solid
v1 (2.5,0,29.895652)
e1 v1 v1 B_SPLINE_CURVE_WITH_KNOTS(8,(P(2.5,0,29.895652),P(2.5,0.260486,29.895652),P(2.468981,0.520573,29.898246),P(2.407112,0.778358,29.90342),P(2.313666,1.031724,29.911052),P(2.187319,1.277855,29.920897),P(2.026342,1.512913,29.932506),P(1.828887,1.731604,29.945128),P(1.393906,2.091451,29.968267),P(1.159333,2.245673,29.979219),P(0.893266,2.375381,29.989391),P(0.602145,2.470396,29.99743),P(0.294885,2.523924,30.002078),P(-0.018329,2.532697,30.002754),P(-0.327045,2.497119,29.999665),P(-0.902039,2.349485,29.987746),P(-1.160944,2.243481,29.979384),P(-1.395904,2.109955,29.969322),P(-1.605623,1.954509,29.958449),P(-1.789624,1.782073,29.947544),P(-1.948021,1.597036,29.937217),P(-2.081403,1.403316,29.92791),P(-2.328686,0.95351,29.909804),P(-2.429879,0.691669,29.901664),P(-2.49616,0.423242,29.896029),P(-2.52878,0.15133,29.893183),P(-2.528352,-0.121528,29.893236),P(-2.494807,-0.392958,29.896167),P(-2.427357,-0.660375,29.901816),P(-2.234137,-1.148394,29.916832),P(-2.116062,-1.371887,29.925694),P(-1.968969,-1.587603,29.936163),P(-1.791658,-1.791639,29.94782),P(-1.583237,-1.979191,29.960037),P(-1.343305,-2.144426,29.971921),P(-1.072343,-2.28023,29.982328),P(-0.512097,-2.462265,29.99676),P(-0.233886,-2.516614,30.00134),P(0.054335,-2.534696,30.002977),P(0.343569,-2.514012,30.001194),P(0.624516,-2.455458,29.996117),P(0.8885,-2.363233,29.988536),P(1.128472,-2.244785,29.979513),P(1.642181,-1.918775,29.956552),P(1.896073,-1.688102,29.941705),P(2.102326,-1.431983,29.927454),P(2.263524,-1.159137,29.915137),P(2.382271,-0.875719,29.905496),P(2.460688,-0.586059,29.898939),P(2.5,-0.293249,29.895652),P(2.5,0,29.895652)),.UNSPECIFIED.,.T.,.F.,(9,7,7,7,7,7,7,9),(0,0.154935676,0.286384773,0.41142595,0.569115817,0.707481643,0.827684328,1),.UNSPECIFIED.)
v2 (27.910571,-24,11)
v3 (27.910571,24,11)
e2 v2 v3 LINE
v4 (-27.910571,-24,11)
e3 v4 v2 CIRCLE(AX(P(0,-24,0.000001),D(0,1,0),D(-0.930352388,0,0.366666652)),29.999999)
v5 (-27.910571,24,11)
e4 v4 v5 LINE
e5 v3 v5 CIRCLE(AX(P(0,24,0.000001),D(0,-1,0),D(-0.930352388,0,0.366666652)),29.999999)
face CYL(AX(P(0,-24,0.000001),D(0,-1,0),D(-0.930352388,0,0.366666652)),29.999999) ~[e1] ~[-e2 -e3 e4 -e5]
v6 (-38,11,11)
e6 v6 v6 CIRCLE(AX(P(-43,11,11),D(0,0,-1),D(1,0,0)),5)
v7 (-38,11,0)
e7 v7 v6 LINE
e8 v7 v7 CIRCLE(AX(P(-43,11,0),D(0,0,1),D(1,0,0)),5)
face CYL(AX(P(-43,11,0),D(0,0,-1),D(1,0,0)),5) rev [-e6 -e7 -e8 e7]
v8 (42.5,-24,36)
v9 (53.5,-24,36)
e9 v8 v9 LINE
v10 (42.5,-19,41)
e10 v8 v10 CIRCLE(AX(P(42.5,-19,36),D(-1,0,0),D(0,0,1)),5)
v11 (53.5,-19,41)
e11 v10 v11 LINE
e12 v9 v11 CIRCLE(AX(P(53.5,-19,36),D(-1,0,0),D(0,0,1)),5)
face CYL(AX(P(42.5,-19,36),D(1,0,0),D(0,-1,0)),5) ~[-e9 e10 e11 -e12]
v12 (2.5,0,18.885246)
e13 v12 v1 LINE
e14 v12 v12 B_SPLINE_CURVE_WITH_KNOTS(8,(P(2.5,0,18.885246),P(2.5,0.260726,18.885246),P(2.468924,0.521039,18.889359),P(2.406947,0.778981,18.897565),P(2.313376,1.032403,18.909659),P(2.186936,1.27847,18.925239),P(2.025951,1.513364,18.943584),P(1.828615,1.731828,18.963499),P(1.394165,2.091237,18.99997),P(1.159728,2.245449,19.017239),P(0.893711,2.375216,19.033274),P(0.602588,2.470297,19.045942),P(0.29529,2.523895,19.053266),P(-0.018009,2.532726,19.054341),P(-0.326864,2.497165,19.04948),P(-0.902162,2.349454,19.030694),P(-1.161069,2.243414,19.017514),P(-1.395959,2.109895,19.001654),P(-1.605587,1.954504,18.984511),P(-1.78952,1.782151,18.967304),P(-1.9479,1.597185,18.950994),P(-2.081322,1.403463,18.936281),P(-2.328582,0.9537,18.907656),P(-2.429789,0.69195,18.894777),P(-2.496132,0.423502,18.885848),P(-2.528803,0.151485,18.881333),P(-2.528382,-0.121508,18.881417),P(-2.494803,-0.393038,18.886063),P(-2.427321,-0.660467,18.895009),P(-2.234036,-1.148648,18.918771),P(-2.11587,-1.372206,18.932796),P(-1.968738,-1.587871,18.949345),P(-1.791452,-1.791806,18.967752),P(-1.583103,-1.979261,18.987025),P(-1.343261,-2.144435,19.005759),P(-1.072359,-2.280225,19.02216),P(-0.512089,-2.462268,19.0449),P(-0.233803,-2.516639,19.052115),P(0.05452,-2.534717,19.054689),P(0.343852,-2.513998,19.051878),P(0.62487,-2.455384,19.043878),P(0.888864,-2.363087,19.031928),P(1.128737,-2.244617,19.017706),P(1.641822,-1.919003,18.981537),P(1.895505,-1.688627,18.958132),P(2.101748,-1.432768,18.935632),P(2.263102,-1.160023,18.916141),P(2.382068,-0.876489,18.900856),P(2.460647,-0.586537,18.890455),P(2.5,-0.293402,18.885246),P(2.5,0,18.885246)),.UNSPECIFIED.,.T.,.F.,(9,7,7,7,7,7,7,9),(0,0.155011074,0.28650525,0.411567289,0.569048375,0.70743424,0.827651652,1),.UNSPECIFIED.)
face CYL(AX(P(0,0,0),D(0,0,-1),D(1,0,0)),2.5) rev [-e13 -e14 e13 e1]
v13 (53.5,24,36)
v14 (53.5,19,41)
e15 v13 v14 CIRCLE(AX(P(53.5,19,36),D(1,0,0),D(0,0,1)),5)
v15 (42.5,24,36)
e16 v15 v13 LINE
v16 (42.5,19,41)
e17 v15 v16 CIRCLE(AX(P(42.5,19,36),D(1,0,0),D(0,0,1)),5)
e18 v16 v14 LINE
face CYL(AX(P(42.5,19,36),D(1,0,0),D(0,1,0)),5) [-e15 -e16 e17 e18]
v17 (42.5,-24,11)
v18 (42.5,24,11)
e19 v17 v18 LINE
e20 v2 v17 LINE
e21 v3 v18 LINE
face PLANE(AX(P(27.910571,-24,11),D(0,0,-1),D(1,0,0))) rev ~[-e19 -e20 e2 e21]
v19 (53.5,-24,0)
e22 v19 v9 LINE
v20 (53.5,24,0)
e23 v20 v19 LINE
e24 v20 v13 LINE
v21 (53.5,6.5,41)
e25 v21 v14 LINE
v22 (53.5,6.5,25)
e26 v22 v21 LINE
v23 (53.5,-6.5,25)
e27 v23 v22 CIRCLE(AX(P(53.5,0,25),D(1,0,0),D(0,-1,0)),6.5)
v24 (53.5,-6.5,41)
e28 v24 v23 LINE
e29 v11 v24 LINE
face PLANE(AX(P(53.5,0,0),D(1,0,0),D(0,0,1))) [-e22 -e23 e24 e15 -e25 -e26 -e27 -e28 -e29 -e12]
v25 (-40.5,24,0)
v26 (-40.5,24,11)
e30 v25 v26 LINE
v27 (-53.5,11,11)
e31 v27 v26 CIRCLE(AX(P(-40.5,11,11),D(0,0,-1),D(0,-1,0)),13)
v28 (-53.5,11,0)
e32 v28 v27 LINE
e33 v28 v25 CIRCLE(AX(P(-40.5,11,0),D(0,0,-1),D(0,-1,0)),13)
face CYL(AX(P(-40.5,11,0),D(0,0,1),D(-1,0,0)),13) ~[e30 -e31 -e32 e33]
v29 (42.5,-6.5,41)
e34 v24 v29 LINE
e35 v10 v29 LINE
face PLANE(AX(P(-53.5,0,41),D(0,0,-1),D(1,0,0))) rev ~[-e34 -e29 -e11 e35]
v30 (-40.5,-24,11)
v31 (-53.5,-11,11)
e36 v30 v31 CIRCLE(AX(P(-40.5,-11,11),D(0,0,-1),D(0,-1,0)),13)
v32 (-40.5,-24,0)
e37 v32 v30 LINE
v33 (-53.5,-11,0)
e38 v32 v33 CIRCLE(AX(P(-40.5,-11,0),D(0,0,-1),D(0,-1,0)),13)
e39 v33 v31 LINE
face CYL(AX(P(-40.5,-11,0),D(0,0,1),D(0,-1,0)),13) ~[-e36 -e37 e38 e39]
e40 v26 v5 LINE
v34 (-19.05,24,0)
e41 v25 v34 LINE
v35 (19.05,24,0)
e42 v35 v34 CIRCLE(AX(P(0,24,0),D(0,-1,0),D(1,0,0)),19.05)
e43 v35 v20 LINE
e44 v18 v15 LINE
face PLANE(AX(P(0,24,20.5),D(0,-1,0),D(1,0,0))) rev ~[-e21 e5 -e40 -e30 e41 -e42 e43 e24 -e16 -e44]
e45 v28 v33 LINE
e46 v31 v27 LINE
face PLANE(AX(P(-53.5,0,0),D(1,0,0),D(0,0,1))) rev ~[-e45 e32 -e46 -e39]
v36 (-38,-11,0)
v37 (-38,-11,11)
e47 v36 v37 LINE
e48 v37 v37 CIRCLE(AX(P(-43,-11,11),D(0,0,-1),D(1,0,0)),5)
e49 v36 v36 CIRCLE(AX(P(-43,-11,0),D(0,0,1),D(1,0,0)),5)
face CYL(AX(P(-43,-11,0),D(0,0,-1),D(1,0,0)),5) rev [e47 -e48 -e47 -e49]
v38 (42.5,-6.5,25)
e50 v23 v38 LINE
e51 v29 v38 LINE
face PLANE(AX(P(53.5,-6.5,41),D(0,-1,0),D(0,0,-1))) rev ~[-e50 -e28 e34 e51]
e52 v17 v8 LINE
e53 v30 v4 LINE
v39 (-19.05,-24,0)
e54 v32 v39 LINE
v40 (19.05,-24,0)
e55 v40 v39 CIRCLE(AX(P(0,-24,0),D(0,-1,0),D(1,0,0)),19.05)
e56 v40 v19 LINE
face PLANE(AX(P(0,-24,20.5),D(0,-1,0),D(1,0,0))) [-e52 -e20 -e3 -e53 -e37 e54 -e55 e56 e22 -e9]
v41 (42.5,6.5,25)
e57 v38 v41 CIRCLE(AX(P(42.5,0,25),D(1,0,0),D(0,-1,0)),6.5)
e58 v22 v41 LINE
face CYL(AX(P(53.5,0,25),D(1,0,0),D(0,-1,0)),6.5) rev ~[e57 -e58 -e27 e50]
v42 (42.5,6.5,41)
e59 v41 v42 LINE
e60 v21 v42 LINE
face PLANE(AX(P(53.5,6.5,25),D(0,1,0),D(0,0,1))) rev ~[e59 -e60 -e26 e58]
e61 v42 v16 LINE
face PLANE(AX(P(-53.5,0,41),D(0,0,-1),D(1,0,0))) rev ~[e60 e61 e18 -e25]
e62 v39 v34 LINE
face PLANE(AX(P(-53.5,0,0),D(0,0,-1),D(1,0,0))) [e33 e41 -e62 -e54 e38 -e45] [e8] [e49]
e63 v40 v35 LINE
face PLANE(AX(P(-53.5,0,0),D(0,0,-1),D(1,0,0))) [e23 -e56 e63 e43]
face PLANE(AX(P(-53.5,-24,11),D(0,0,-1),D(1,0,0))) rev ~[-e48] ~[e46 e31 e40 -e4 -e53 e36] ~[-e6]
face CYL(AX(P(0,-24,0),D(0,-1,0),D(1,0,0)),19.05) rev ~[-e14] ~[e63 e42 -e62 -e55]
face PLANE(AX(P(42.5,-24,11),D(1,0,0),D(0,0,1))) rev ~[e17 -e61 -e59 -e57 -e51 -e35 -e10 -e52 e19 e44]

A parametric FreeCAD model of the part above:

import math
import FreeCAD as App
import Part
import Sketcher


def edges_at(feature, points):
    """Names of the edges that pass closest to the given points."""
    edges = feature.Shape.Edges
    near = lambda p: min(range(len(edges)), key=lambda i: edges[i].distToShape(Part.Vertex(*p))[0])
    return sorted({f"Edge{near(p) + 1}" for p in points})


def add_polygon(sketch, points):
    """Adds a closed chain of lines whose ends are joined by coincident constraints."""
    first, n = sketch.GeometryCount, len(points)
    for a, b in zip(points, points[1:] + points[:1]):
        sketch.addGeometry(Part.LineSegment(App.Vector(*a, 0), App.Vector(*b, 0)), False)
    for i in range(n):
        sketch.addConstraint(Sketcher.Constraint("Coincident", first + i, 2, first + (i + 1) % n, 1))

doc = App.newDocument("Part")
params = doc.addObject("Spreadsheet::Sheet", "Params")
for row, (alias, value) in enumerate([
    ("sketch1_width", "107 mm"),
    ("sketch1_height", "41 mm"),
    ("pad1_length", "48 mm"),
    ("sketch2_radius", "29.999999 mm"),
    ("sketch2_width", "96 mm"),
    ("sketch2_height", "30 mm"),
    ("sketch2_radius2", "19.05 mm"),
    ("fillet_radius", "5 mm"),
    ("fillet2_radius", "13 mm"),
    ("sketch3_diameter", "5 mm"),
    ("sketch3_diameter2", "10 mm"),
    ("sketch4_radius", "6.5 mm"),
    ("sketch4_height", "16 mm"),
    ("pocket3_length", "11 mm"),
], start=1):
    params.set(f"A{row}", alias)
    params.set(f"B{row}", "=" + value)
    params.setAlias(f"B{row}", alias)

body = doc.addObject("PartDesign::Body", "Body")

# Sketch on XZ plane
sketch1 = body.newObject("Sketcher::SketchObject", "Sketch")
sketch1.AttachmentSupport = (doc.getObject("XZ_Plane"), [""])
sketch1.MapMode = "FlatFace"
add_polygon(sketch1, [(-54, 41), (-54, 0), (54, 0), (54, 41)])  # lines 0-3
sketch1.addConstraint([
    Sketcher.Constraint("Vertical", 0),
    Sketcher.Constraint("Horizontal", 1),
    Sketcher.Constraint("Vertical", 2),
    Sketcher.Constraint("Horizontal", 3),
    Sketcher.Constraint("Symmetric", 0, 2, 1, 2, -1, 1),
    Sketcher.Constraint("DistanceX", 1, 1, 1, 2, 107.0),
    Sketcher.Constraint("DistanceY", 0, 2, 0, 1, 41.0),
])
sketch1.setExpression("Constraints[9]", "Params.sketch1_width")
sketch1.setExpression("Constraints[10]", "Params.sketch1_height")
pad1 = body.newObject("PartDesign::Pad", "Pad")
pad1.Profile = sketch1
pad1.setExpression("Length", "Params.pad1_length")
pad1.Midplane = True

# Sketch on XZ plane
sketch2 = body.newObject("Sketcher::SketchObject", "Sketch001")
sketch2.AttachmentSupport = (doc.getObject("XZ_Plane"), [""])
sketch2.MapMode = "FlatFace"
sketch2.AttachmentOffset = App.Placement(App.Vector(0, 0, 24), App.Rotation())
sketch2.addGeometry([
    Part.ArcOfCircle(Part.Circle(App.Vector(0, 0, 0), App.Vector(0, 0, 1), 30), math.radians(22), math.radians(158)),  # 0
    Part.LineSegment(App.Vector(28, 11, 0), App.Vector(42, 11, 0)),  # 1
    Part.LineSegment(App.Vector(42, 11, 0), App.Vector(42, 41, 0)),  # 2
    Part.LineSegment(App.Vector(42, 41, 0), App.Vector(-54, 41, 0)),  # 3
    Part.LineSegment(App.Vector(-54, 41, 0), App.Vector(-54, 11, 0)),  # 4
    Part.LineSegment(App.Vector(-54, 11, 0), App.Vector(-28, 11, 0)),  # 5
    Part.LineSegment(App.Vector(-19, 0, 0), App.Vector(19, 0, 0)),  # 6
    Part.ArcOfCircle(Part.Circle(App.Vector(0, 0, 0), App.Vector(0, 0, 1), 19), math.radians(0), math.radians(180)),  # 7
], False)
sketch2.addConstraint([
    Sketcher.Constraint("Coincident", 0, 1, 1, 1),
    Sketcher.Constraint("Coincident", 1, 2, 2, 1),
    Sketcher.Constraint("Coincident", 2, 2, 3, 1),
    Sketcher.Constraint("Coincident", 3, 2, 4, 1),
    Sketcher.Constraint("Coincident", 4, 2, 5, 1),
    Sketcher.Constraint("Coincident", 5, 2, 0, 2),
    Sketcher.Constraint("Coincident", 6, 1, 7, 2),
    Sketcher.Constraint("Coincident", 7, 1, 6, 2),
    Sketcher.Constraint("Horizontal", 1),
    Sketcher.Constraint("Vertical", 2),
    Sketcher.Constraint("Horizontal", 3),
    Sketcher.Constraint("Vertical", 4),
    Sketcher.Constraint("Horizontal", 5),
    Sketcher.Constraint("Horizontal", 6),
    Sketcher.Constraint("Coincident", 0, 3, -1, 1),
    Sketcher.Constraint("Coincident", 7, 3, -1, 1),
    Sketcher.Constraint("PointOnObject", 6, 1, -1),
    Sketcher.Constraint("Horizontal", 1, 2, 4, 2),
    Sketcher.Constraint("Radius", 0, 29.999999),
    Sketcher.Constraint("DistanceX", 3, 2, 3, 1, 96.0),
    Sketcher.Constraint("DistanceY", 2, 1, 2, 2, 30.0),
    Sketcher.Constraint("Radius", 7, 19.05),
    Sketcher.Constraint("DistanceY", -1, 1, 0, 1, 11.0),
    Sketcher.Constraint("DistanceX", -1, 1, 1, 2, 42.5),
])
sketch2.setExpression("Constraints[18]", "Params.sketch2_radius")
sketch2.setExpression("Constraints[19]", "Params.sketch2_width")
sketch2.setExpression("Constraints[20]", "Params.sketch2_height")
sketch2.setExpression("Constraints[21]", "Params.sketch2_radius2")
pocket1 = body.newObject("PartDesign::Pocket", "Pocket")
pocket1.Profile = sketch2
pocket1.Type = "ThroughAll"
doc.recompute()

fillet = body.newObject("PartDesign::Fillet", "Fillet")
fillet.Base = (pocket1, edges_at(pocket1, [(48, -24, 41), (48, 24, 41)]))
fillet.setExpression("Radius", "Params.fillet_radius")
doc.recompute()

fillet2 = body.newObject("PartDesign::Fillet", "Fillet001")
fillet2.Base = (fillet, edges_at(fillet, [(-53.5, -24, 5.5), (-53.5, 24, 5.5)]))
fillet2.setExpression("Radius", "Params.fillet2_radius")

# Sketch on XY plane
sketch3 = body.newObject("Sketcher::SketchObject", "Sketch002")
sketch3.AttachmentSupport = (doc.getObject("XY_Plane"), [""])
sketch3.MapMode = "FlatFace"
sketch3.addGeometry([
    Part.Circle(App.Vector(0, 0, 0), App.Vector(0, 0, 1), 2.5),
    Part.Circle(App.Vector(-43, -11, 0), App.Vector(0, 0, 1), 5),
    Part.Circle(App.Vector(-43, 11, 0), App.Vector(0, 0, 1), 5),
], False)
sketch3.addConstraint([
    Sketcher.Constraint("Coincident", 0, 3, -1, 1),
    Sketcher.Constraint("Equal", 1, 2),
    Sketcher.Constraint("Symmetric", 1, 3, 2, 3, -1),
    Sketcher.Constraint("Diameter", 0, 5.0),
    Sketcher.Constraint("Diameter", 1, 10.0),
    Sketcher.Constraint("DistanceX", 1, 3, -1, 1, 43.0),
    Sketcher.Constraint("DistanceY", 1, 3, -1, 1, 11.0),
])
sketch3.setExpression("Constraints[3]", "Params.sketch3_diameter")
sketch3.setExpression("Constraints[4]", "Params.sketch3_diameter2")
pocket2 = body.newObject("PartDesign::Pocket", "Pocket001")
pocket2.Profile = sketch3
pocket2.Type = "ThroughAll"
pocket2.Reversed = True

# Sketch on YZ plane
sketch4 = body.newObject("Sketcher::SketchObject", "Sketch003")
sketch4.AttachmentSupport = (doc.getObject("YZ_Plane"), [""])
sketch4.MapMode = "FlatFace"
sketch4.AttachmentOffset = App.Placement(App.Vector(0, 0, 53.5), App.Rotation())
sketch4.addGeometry([
    Part.LineSegment(App.Vector(6, 41, 0), App.Vector(-6, 41, 0)),
    Part.LineSegment(App.Vector(-6, 41, 0), App.Vector(-6, 25, 0)),
    Part.ArcOfCircle(Part.Circle(App.Vector(0, 25, 0), App.Vector(0, 0, 1), 6), math.radians(180), math.radians(360)),
    Part.LineSegment(App.Vector(6, 25, 0), App.Vector(6, 41, 0)),
], False)
sketch4.addConstraint([
    Sketcher.Constraint("Coincident", 0, 2, 1, 1),
    Sketcher.Constraint("Tangent", 1, 2, 2, 1),
    Sketcher.Constraint("Tangent", 2, 2, 3, 1),
    Sketcher.Constraint("Coincident", 3, 2, 0, 1),
    Sketcher.Constraint("Horizontal", 0),
    Sketcher.Constraint("Vertical", 1),
    Sketcher.Constraint("Vertical", 3),
    Sketcher.Constraint("PointOnObject", 2, 3, -2),
    Sketcher.Constraint("Radius", 2, 6.5),
    Sketcher.Constraint("DistanceY", 1, 2, 1, 1, 16.0),
    Sketcher.Constraint("DistanceY", -1, 1, 2, 3, 25.0),
])
sketch4.setExpression("Constraints[8]", "Params.sketch4_radius")
sketch4.setExpression("Constraints[9]", "Params.sketch4_height")
pocket3 = body.newObject("PartDesign::Pocket", "Pocket002")
pocket3.Profile = sketch4
pocket3.setExpression("Length", "Params.pocket3_length")

doc.recompute()
